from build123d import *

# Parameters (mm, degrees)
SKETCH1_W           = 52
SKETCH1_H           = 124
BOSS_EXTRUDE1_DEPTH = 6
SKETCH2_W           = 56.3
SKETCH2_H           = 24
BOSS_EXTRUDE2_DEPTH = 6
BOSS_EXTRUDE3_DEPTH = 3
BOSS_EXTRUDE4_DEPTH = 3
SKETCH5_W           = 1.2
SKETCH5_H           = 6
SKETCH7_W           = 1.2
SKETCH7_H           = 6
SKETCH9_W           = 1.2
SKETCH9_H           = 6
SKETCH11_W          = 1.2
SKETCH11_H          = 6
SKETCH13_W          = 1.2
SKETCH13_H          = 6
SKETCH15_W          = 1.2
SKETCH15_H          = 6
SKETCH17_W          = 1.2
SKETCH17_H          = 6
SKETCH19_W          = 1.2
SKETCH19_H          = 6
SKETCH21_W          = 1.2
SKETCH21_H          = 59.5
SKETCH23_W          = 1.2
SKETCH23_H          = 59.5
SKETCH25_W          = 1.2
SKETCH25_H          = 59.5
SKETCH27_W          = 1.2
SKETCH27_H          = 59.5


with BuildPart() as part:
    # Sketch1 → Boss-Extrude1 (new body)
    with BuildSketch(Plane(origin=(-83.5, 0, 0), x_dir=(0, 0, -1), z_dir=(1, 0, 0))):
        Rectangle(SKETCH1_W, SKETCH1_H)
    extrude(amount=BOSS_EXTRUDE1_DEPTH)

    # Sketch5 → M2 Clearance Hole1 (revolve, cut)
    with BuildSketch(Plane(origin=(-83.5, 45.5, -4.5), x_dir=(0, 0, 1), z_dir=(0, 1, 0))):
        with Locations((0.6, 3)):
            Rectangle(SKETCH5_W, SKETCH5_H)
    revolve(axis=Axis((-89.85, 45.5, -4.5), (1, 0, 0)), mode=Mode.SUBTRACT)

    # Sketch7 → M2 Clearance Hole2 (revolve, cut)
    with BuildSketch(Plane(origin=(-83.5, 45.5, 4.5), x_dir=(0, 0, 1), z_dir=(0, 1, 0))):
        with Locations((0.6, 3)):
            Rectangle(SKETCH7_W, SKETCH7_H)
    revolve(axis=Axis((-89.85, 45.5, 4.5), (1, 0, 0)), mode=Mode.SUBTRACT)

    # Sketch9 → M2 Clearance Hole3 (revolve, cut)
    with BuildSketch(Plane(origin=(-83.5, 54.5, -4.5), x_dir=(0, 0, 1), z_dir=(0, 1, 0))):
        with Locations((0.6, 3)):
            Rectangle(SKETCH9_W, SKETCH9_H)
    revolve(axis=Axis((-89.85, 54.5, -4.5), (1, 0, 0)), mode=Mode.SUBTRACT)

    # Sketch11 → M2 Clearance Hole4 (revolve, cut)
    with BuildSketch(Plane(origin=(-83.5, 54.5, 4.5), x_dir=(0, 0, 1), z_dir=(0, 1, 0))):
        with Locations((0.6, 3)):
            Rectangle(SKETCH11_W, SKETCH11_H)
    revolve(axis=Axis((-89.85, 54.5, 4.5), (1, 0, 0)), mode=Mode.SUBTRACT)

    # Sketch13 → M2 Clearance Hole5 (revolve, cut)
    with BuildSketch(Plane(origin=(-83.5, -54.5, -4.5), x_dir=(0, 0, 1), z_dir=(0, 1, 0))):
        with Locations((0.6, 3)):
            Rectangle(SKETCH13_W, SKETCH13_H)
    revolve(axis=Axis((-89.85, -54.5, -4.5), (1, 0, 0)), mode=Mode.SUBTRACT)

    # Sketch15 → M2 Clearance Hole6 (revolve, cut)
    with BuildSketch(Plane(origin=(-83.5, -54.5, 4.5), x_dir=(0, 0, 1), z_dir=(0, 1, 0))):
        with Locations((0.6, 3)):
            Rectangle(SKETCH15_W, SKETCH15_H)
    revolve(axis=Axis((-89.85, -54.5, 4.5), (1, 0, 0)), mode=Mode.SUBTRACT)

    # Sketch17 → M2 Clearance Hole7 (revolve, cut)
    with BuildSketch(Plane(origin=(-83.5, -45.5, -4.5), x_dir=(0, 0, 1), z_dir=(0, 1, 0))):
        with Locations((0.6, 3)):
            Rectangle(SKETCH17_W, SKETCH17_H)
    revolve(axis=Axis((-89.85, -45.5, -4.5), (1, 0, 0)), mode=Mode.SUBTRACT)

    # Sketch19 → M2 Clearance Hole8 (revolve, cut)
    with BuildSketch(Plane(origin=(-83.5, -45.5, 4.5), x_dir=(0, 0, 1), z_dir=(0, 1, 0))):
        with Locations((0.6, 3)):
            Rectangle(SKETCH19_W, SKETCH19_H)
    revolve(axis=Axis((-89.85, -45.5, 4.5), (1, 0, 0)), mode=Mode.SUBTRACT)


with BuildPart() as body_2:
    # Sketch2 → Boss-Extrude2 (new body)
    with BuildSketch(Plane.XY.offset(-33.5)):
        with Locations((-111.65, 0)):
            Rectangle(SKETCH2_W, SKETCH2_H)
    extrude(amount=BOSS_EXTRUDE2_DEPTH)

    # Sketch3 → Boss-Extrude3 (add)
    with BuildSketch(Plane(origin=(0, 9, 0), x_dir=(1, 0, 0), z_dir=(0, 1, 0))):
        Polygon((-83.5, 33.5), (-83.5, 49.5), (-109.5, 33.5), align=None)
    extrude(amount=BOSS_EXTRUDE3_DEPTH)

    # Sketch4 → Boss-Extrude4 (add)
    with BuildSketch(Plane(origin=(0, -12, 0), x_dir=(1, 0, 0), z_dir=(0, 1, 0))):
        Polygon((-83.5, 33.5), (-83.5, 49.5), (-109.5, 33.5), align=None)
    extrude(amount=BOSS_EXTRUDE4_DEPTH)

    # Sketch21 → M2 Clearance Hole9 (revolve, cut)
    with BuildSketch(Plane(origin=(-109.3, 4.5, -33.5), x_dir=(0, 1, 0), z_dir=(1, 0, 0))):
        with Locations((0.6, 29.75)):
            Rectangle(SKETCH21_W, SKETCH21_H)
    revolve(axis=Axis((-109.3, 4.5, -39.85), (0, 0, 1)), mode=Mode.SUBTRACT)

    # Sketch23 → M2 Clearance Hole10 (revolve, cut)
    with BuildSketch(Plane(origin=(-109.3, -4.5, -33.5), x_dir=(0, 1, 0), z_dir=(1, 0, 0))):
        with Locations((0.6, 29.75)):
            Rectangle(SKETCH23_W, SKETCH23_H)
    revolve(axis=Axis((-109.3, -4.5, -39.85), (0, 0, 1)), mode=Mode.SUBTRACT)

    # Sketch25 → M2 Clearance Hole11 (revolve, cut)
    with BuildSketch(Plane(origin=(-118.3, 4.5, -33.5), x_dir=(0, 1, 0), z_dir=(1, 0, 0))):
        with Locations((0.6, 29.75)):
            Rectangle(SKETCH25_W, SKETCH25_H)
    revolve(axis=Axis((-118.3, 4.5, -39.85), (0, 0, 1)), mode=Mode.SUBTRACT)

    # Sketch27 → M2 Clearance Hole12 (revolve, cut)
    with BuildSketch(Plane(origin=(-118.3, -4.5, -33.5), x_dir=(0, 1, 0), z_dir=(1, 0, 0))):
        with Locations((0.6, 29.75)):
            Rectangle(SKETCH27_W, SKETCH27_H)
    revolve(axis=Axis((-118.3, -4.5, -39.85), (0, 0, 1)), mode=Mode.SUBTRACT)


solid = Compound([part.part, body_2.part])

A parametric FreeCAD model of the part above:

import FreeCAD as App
import Part
import Sketcher
Q = App.Units.Quantity


def add_polygon(sketch, points):
    """Adds a closed chain of lines whose ends are joined by coincident constraints."""
    first, n = sketch.GeometryCount, len(points)
    for a, b in zip(points, points[1:] + points[:1]):
        sketch.addGeometry(Part.LineSegment(App.Vector(*a, 0), App.Vector(*b, 0)), False)
    for i in range(n):
        sketch.addConstraint(Sketcher.Constraint("Coincident", first + i, 2, first + (i + 1) % n, 1))

doc = App.newDocument("Part")
params = doc.addObject("Spreadsheet::Sheet", "Params")
for row, (alias, value) in enumerate([
    ("sketch1_width", "124 mm"),
    ("sketch1_height", "52 mm"),
    ("pad1_length", "6 mm"),
    ("sketch2_width", "6 mm"),
    ("sketch2_height", "1.2 mm"),
    ("groove_angle", "360 deg"),
    ("sketch3_width", "6 mm"),
    ("sketch3_height", "1.2 mm"),
    ("groove2_angle", "360 deg"),
    ("sketch4_width", "6 mm"),
    ("sketch4_height", "1.2 mm"),
    ("groove3_angle", "360 deg"),
    ("sketch5_width", "6 mm"),
    ("sketch5_height", "1.2 mm"),
    ("groove4_angle", "360 deg"),
    ("sketch6_width", "6 mm"),
    ("sketch6_height", "1.2 mm"),
    ("groove5_angle", "360 deg"),
    ("sketch7_width", "6 mm"),
    ("sketch7_height", "1.2 mm"),
    ("groove6_angle", "360 deg"),
    ("sketch8_width", "6 mm"),
    ("sketch8_height", "1.2 mm"),
    ("groove7_angle", "360 deg"),
    ("sketch9_width", "6 mm"),
    ("sketch9_height", "1.2 mm"),
    ("groove8_angle", "360 deg"),
    ("sketch10_height", "24 mm"),
    ("sketch10_width", "56.3 mm"),
    ("pad2_length", "6 mm"),
    ("sketch11_width", "26 mm"),
    ("sketch11_height", "16 mm"),
    ("pad3_length", "3 mm"),
    ("sketch12_width", "26 mm"),
    ("sketch12_height", "16 mm"),
    ("pad4_length", "3 mm"),
    ("sketch13_width", "1.2 mm"),
    ("sketch13_height", "59.5 mm"),
    ("groove9_angle", "360 deg"),
    ("sketch14_width", "1.2 mm"),
    ("sketch14_height", "59.5 mm"),
    ("groove10_angle", "360 deg"),
    ("sketch15_width", "1.2 mm"),
    ("sketch15_height", "59.5 mm"),
    ("groove11_angle", "360 deg"),
    ("sketch16_width", "1.2 mm"),
    ("sketch16_height", "59.5 mm"),
    ("groove12_angle", "360 deg"),
], start=1):
    params.set(f"A{row}", alias)
    params.set(f"B{row}", "=" + value)
    params.setAlias(f"B{row}", alias)

body = doc.addObject("PartDesign::Body", "Body")

sketch1 = body.newObject("Sketcher::SketchObject", "Sketch")
sketch1.AttachmentSupport = (doc.getObject("YZ_Plane"), [""])
sketch1.MapMode = "FlatFace"
sketch1.AttachmentOffset = App.Placement(App.Vector(0, 0, -83.5), App.Rotation())
add_polygon(sketch1, [(62, 26), (-62, 26), (-62, -26), (62, -26)])
sketch1.addConstraint([
    Sketcher.Constraint("Horizontal", 0),
    Sketcher.Constraint("Vertical", 1),
    Sketcher.Constraint("Horizontal", 2),
    Sketcher.Constraint("Vertical", 3),
    Sketcher.Constraint("Symmetric", 0, 2, 2, 2, -1, 1),
    Sketcher.Constraint("DistanceX", 0, 2, 0, 1, Q("124 mm")),
    Sketcher.Constraint("DistanceY", 1, 2, 1, 1, Q("52 mm")),
])
sketch1.setExpression("Constraints[9]", "Params.sketch1_width")
sketch1.setExpression("Constraints[10]", "Params.sketch1_height")
pad1 = body.newObject("PartDesign::Pad", "Pad")
pad1.Profile = sketch1
pad1.setExpression("Length", "Params.pad1_length")

sketch2 = body.newObject("Sketcher::SketchObject", "Sketch001")
sketch2.AttachmentSupport = (doc.getObject("XZ_Plane"), [""])
sketch2.MapMode = "FlatFace"
sketch2.AttachmentOffset = App.Placement(App.Vector(0, 0, -45.5), App.Rotation())
add_polygon(sketch2, [(-77.5, -4.5), (-83.5, -4.5), (-83.5, -3.3), (-77.5, -3.3)])
sketch2.addGeometry(Part.LineSegment(App.Vector(-83.5, -4.5, 0), App.Vector(-77.5, -4.5, 0)), True)
sketch2.addConstraint([
    Sketcher.Constraint("Horizontal", 0),
    Sketcher.Constraint("Vertical", 1),
    Sketcher.Constraint("Horizontal", 2),
    Sketcher.Constraint("Vertical", 3),
    Sketcher.Constraint("Horizontal", 4),
    Sketcher.Constraint("Coincident", 4, 1, 0, 2),
    Sketcher.Constraint("Vertical", 2, 2, 4, 2),
    Sketcher.Constraint("DistanceX", 0, 2, 0, 1, Q("6 mm")),
    Sketcher.Constraint("DistanceY", 1, 1, 1, 2, Q("1.2 mm")),
    Sketcher.Constraint("DistanceX", 0, 2, -1, 1, Q("83.5 mm")),
    Sketcher.Constraint("DistanceY", 0, 2, -1, 1, Q("4.5 mm")),
])
sketch2.setExpression("Constraints[11]", "Params.sketch2_width")
sketch2.setExpression("Constraints[12]", "Params.sketch2_height")
groove = body.newObject("PartDesign::Groove", "Groove")
groove.Profile = sketch2
groove.ReferenceAxis = (sketch2, ["Axis0"])
groove.setExpression("Angle", "Params.groove_angle")

sketch3 = body.newObject("Sketcher::SketchObject", "Sketch002")
sketch3.AttachmentSupport = (doc.getObject("XZ_Plane"), [""])
sketch3.MapMode = "FlatFace"
sketch3.AttachmentOffset = App.Placement(App.Vector(0, 0, -45.5), App.Rotation())
add_polygon(sketch3, [(-77.5, 4.5), (-83.5, 4.5), (-83.5, 5.7), (-77.5, 5.7)])
sketch3.addGeometry(Part.LineSegment(App.Vector(-83.5, 4.5, 0), App.Vector(-77.5, 4.5, 0)), True)
sketch3.addConstraint([
    Sketcher.Constraint("Horizontal", 0),
    Sketcher.Constraint("Vertical", 1),
    Sketcher.Constraint("Horizontal", 2),
    Sketcher.Constraint("Vertical", 3),
    Sketcher.Constraint("Horizontal", 4),
    Sketcher.Constraint("Coincident", 4, 1, 0, 2),
    Sketcher.Constraint("Vertical", 2, 2, 4, 2),
    Sketcher.Constraint("DistanceX", 0, 2, 0, 1, Q("6 mm")),
    Sketcher.Constraint("DistanceY", 1, 1, 1, 2, Q("1.2 mm")),
    Sketcher.Constraint("DistanceX", 0, 2, -1, 1, Q("83.5 mm")),
    Sketcher.Constraint("DistanceY", -1, 1, 0, 2, Q("4.5 mm")),
])
sketch3.setExpression("Constraints[11]", "Params.sketch3_width")
sketch3.setExpression("Constraints[12]", "Params.sketch3_height")
groove2 = body.newObject("PartDesign::Groove", "Groove001")
groove2.Profile = sketch3
groove2.ReferenceAxis = (sketch3, ["Axis0"])
groove2.setExpression("Angle", "Params.groove2_angle")

sketch4 = body.newObject("Sketcher::SketchObject", "Sketch003")
sketch4.AttachmentSupport = (doc.getObject("XZ_Plane"), [""])
sketch4.MapMode = "FlatFace"
sketch4.AttachmentOffset = App.Placement(App.Vector(0, 0, -54.5), App.Rotation())
add_polygon(sketch4, [(-77.5, -4.5), (-83.5, -4.5), (-83.5, -3.3), (-77.5, -3.3)])
sketch4.addGeometry(Part.LineSegment(App.Vector(-83.5, -4.5, 0), App.Vector(-77.5, -4.5, 0)), True)
sketch4.addConstraint([
    Sketcher.Constraint("Horizontal", 0),
    Sketcher.Constraint("Vertical", 1),
    Sketcher.Constraint("Horizontal", 2),
    Sketcher.Constraint("Vertical", 3),
    Sketcher.Constraint("Horizontal", 4),
    Sketcher.Constraint("Coincident", 4, 1, 0, 2),
    Sketcher.Constraint("Vertical", 2, 2, 4, 2),
    Sketcher.Constraint("DistanceX", 0, 2, 0, 1, Q("6 mm")),
    Sketcher.Constraint("DistanceY", 1, 1, 1, 2, Q("1.2 mm")),
    Sketcher.Constraint("DistanceX", 0, 2, -1, 1, Q("83.5 mm")),
    Sketcher.Constraint("DistanceY", 0, 2, -1, 1, Q("4.5 mm")),
])
sketch4.setExpression("Constraints[11]", "Params.sketch4_width")
sketch4.setExpression("Constraints[12]", "Params.sketch4_height")
groove3 = body.newObject("PartDesign::Groove", "Groove002")
groove3.Profile = sketch4
groove3.ReferenceAxis = (sketch4, ["Axis0"])
groove3.setExpression("Angle", "Params.groove3_angle")

sketch5 = body.newObject("Sketcher::SketchObject", "Sketch004")
sketch5.AttachmentSupport = (doc.getObject("XZ_Plane"), [""])
sketch5.MapMode = "FlatFace"
sketch5.AttachmentOffset = App.Placement(App.Vector(0, 0, -54.5), App.Rotation())
add_polygon(sketch5, [(-77.5, 4.5), (-83.5, 4.5), (-83.5, 5.7), (-77.5, 5.7)])
sketch5.addGeometry(Part.LineSegment(App.Vector(-83.5, 4.5, 0), App.Vector(-77.5, 4.5, 0)), True)
sketch5.addConstraint([
    Sketcher.Constraint("Horizontal", 0),
    Sketcher.Constraint("Vertical", 1),
    Sketcher.Constraint("Horizontal", 2),
    Sketcher.Constraint("Vertical", 3),
    Sketcher.Constraint("Horizontal", 4),
    Sketcher.Constraint("Coincident", 4, 1, 0, 2),
    Sketcher.Constraint("Vertical", 2, 2, 4, 2),
    Sketcher.Constraint("DistanceX", 0, 2, 0, 1, Q("6 mm")),
    Sketcher.Constraint("DistanceY", 1, 1, 1, 2, Q("1.2 mm")),
    Sketcher.Constraint("DistanceX", 0, 2, -1, 1, Q("83.5 mm")),
    Sketcher.Constraint("DistanceY", -1, 1, 0, 2, Q("4.5 mm")),
])
sketch5.setExpression("Constraints[11]", "Params.sketch5_width")
sketch5.setExpression("Constraints[12]", "Params.sketch5_height")
groove4 = body.newObject("PartDesign::Groove", "Groove003")
groove4.Profile = sketch5
groove4.ReferenceAxis = (sketch5, ["Axis0"])
groove4.setExpression("Angle", "Params.groove4_angle")

sketch6 = body.newObject("Sketcher::SketchObject", "Sketch005")
sketch6.AttachmentSupport = (doc.getObject("XZ_Plane"), [""])
sketch6.MapMode = "FlatFace"
sketch6.AttachmentOffset = App.Placement(App.Vector(0, 0, 54.5), App.Rotation())
add_polygon(sketch6, [(-77.5, -4.5), (-83.5, -4.5), (-83.5, -3.3), (-77.5, -3.3)])
sketch6.addGeometry(Part.LineSegment(App.Vector(-83.5, -4.5, 0), App.Vector(-77.5, -4.5, 0)), True)
sketch6.addConstraint([
    Sketcher.Constraint("Horizontal", 0),
    Sketcher.Constraint("Vertical", 1),
    Sketcher.Constraint("Horizontal", 2),
    Sketcher.Constraint("Vertical", 3),
    Sketcher.Constraint("Horizontal", 4),
    Sketcher.Constraint("Coincident", 4, 1, 0, 2),
    Sketcher.Constraint("Vertical", 2, 2, 4, 2),
    Sketcher.Constraint("DistanceX", 0, 2, 0, 1, Q("6 mm")),
    Sketcher.Constraint("DistanceY", 1, 1, 1, 2, Q("1.2 mm")),
    Sketcher.Constraint("DistanceX", 0, 2, -1, 1, Q("83.5 mm")),
    Sketcher.Constraint("DistanceY", 0, 2, -1, 1, Q("4.5 mm")),
])
sketch6.setExpression("Constraints[11]", "Params.sketch6_width")
sketch6.setExpression("Constraints[12]", "Params.sketch6_height")
groove5 = body.newObject("PartDesign::Groove", "Groove004")
groove5.Profile = sketch6
groove5.ReferenceAxis = (sketch6, ["Axis0"])
groove5.setExpression("Angle", "Params.groove5_angle")

sketch7 = body.newObject("Sketcher::SketchObject", "Sketch006")
sketch7.AttachmentSupport = (doc.getObject("XZ_Plane"), [""])
sketch7.MapMode = "FlatFace"
sketch7.AttachmentOffset = App.Placement(App.Vector(0, 0, 54.5), App.Rotation())
add_polygon(sketch7, [(-77.5, 4.5), (-83.5, 4.5), (-83.5, 5.7), (-77.5, 5.7)])
sketch7.addGeometry(Part.LineSegment(App.Vector(-83.5, 4.5, 0), App.Vector(-77.5, 4.5, 0)), True)
sketch7.addConstraint([
    Sketcher.Constraint("Horizontal", 0),
    Sketcher.Constraint("Vertical", 1),
    Sketcher.Constraint("Horizontal", 2),
    Sketcher.Constraint("Vertical", 3),
    Sketcher.Constraint("Horizontal", 4),
    Sketcher.Constraint("Coincident", 4, 1, 0, 2),
    Sketcher.Constraint("Vertical", 2, 2, 4, 2),
    Sketcher.Constraint("DistanceX", 0, 2, 0, 1, Q("6 mm")),
    Sketcher.Constraint("DistanceY", 1, 1, 1, 2, Q("1.2 mm")),
    Sketcher.Constraint("DistanceX", 0, 2, -1, 1, Q("83.5 mm")),
    Sketcher.Constraint("DistanceY", -1, 1, 0, 2, Q("4.5 mm")),
])
sketch7.setExpression("Constraints[11]", "Params.sketch7_width")
sketch7.setExpression("Constraints[12]", "Params.sketch7_height")
groove6 = body.newObject("PartDesign::Groove", "Groove005")
groove6.Profile = sketch7
groove6.ReferenceAxis = (sketch7, ["Axis0"])
groove6.setExpression("Angle", "Params.groove6_angle")

sketch8 = body.newObject("Sketcher::SketchObject", "Sketch007")
sketch8.AttachmentSupport = (doc.getObject("XZ_Plane"), [""])
sketch8.MapMode = "FlatFace"
sketch8.AttachmentOffset = App.Placement(App.Vector(0, 0, 45.5), App.Rotation())
add_polygon(sketch8, [(-77.5, -4.5), (-83.5, -4.5), (-83.5, -3.3), (-77.5, -3.3)])
sketch8.addGeometry(Part.LineSegment(App.Vector(-83.5, -4.5, 0), App.Vector(-77.5, -4.5, 0)), True)
sketch8.addConstraint([
    Sketcher.Constraint("Horizontal", 0),
    Sketcher.Constraint("Vertical", 1),
    Sketcher.Constraint("Horizontal", 2),
    Sketcher.Constraint("Vertical", 3),
    Sketcher.Constraint("Horizontal", 4),
    Sketcher.Constraint("Coincident", 4, 1, 0, 2),
    Sketcher.Constraint("Vertical", 2, 2, 4, 2),
    Sketcher.Constraint("DistanceX", 0, 2, 0, 1, Q("6 mm")),
    Sketcher.Constraint("DistanceY", 1, 1, 1, 2, Q("1.2 mm")),
    Sketcher.Constraint("DistanceX", 0, 2, -1, 1, Q("83.5 mm")),
    Sketcher.Constraint("DistanceY", 0, 2, -1, 1, Q("4.5 mm")),
])
sketch8.setExpression("Constraints[11]", "Params.sketch8_width")
sketch8.setExpression("Constraints[12]", "Params.sketch8_height")
groove7 = body.newObject("PartDesign::Groove", "Groove006")
groove7.Profile = sketch8
groove7.ReferenceAxis = (sketch8, ["Axis0"])
groove7.setExpression("Angle", "Params.groove7_angle")

sketch9 = body.newObject("Sketcher::SketchObject", "Sketch008")
sketch9.AttachmentSupport = (doc.getObject("XZ_Plane"), [""])
sketch9.MapMode = "FlatFace"
sketch9.AttachmentOffset = App.Placement(App.Vector(0, 0, 45.5), App.Rotation())
add_polygon(sketch9, [(-77.5, 4.5), (-83.5, 4.5), (-83.5, 5.7), (-77.5, 5.7)])
sketch9.addGeometry(Part.LineSegment(App.Vector(-83.5, 4.5, 0), App.Vector(-77.5, 4.5, 0)), True)
sketch9.addConstraint([
    Sketcher.Constraint("Horizontal", 0),
    Sketcher.Constraint("Vertical", 1),
    Sketcher.Constraint("Horizontal", 2),
    Sketcher.Constraint("Vertical", 3),
    Sketcher.Constraint("Horizontal", 4),
    Sketcher.Constraint("Coincident", 4, 1, 0, 2),
    Sketcher.Constraint("Vertical", 2, 2, 4, 2),
    Sketcher.Constraint("DistanceX", 0, 2, 0, 1, Q("6 mm")),
    Sketcher.Constraint("DistanceY", 1, 1, 1, 2, Q("1.2 mm")),
    Sketcher.Constraint("DistanceX", 0, 2, -1, 1, Q("83.5 mm")),
    Sketcher.Constraint("DistanceY", -1, 1, 0, 2, Q("4.5 mm")),
])
sketch9.setExpression("Constraints[11]", "Params.sketch9_width")
sketch9.setExpression("Constraints[12]", "Params.sketch9_height")
groove8 = body.newObject("PartDesign::Groove", "Groove007")
groove8.Profile = sketch9
groove8.ReferenceAxis = (sketch9, ["Axis0"])
groove8.setExpression("Angle", "Params.groove8_angle")
body2 = doc.addObject("PartDesign::Body", "Body001")

sketch10 = body2.newObject("Sketcher::SketchObject", "Sketch009")
sketch10.AttachmentSupport = (doc.getObject("XY_Plane001"), [""])
sketch10.MapMode = "FlatFace"
sketch10.AttachmentOffset = App.Placement(App.Vector(0, 0, -33.5), App.Rotation())
add_polygon(sketch10, [(-140, 12), (-140, -12), (-84, -12), (-84, 12)])
sketch10.addConstraint([
    Sketcher.Constraint("Vertical", 0),
    Sketcher.Constraint("Horizontal", 1),
    Sketcher.Constraint("Vertical", 2),
    Sketcher.Constraint("Horizontal", 3),
    Sketcher.Constraint("DistanceY", 0, 2, 0, 1, Q("24 mm")),
    Sketcher.Constraint("DistanceX", 1, 1, 1, 2, Q("56.3 mm")),
    Sketcher.Constraint("DistanceY", 0, 2, -1, 1, Q("12 mm")),
    Sketcher.Constraint("DistanceX", 0, 2, -1, 1, Q("139.8 mm")),
])
sketch10.setExpression("Constraints[8]", "Params.sketch10_height")
sketch10.setExpression("Constraints[9]", "Params.sketch10_width")
pad2 = body2.newObject("PartDesign::Pad", "Pad001")
pad2.Profile = sketch10
pad2.setExpression("Length", "Params.pad2_length")

sketch11 = body2.newObject("Sketcher::SketchObject", "Sketch010")
sketch11.AttachmentSupport = (doc.getObject("XZ_Plane001"), [""])
sketch11.MapMode = "FlatFace"
sketch11.AttachmentOffset = App.Placement(App.Vector(0, 0, -9), App.Rotation())
add_polygon(sketch11, [(-84, -34), (-84, -50), (-110, -34)])
sketch11.addConstraint([
    Sketcher.Constraint("Vertical", 0),
    Sketcher.Constraint("Horizontal", 2),
    Sketcher.Constraint("DistanceX", 2, 1, 2, 2, Q("26 mm")),
    Sketcher.Constraint("DistanceY", 0, 2, 0, 1, Q("16 mm")),
    Sketcher.Constraint("DistanceX", 0, 2, -1, 1, Q("83.5 mm")),
    Sketcher.Constraint("DistanceY", 0, 2, -1, 1, Q("49.5 mm")),
])
sketch11.setExpression("Constraints[5]", "Params.sketch11_width")
sketch11.setExpression("Constraints[6]", "Params.sketch11_height")
pad3 = body2.newObject("PartDesign::Pad", "Pad002")
pad3.Profile = sketch11
pad3.setExpression("Length", "Params.pad3_length")
pad3.Reversed = True

sketch12 = body2.newObject("Sketcher::SketchObject", "Sketch011")
sketch12.AttachmentSupport = (doc.getObject("XZ_Plane001"), [""])
sketch12.MapMode = "FlatFace"
sketch12.AttachmentOffset = App.Placement(App.Vector(0, 0, 12), App.Rotation())
add_polygon(sketch12, [(-84, -34), (-84, -50), (-110, -34)])
sketch12.addConstraint([
    Sketcher.Constraint("Vertical", 0),
    Sketcher.Constraint("Horizontal", 2),
    Sketcher.Constraint("DistanceX", 2, 1, 2, 2, Q("26 mm")),
    Sketcher.Constraint("DistanceY", 0, 2, 0, 1, Q("16 mm")),
    Sketcher.Constraint("DistanceX", 0, 2, -1, 1, Q("83.5 mm")),
    Sketcher.Constraint("DistanceY", 0, 2, -1, 1, Q("49.5 mm")),
])
sketch12.setExpression("Constraints[5]", "Params.sketch12_width")
sketch12.setExpression("Constraints[6]", "Params.sketch12_height")
pad4 = body2.newObject("PartDesign::Pad", "Pad003")
pad4.Profile = sketch12
pad4.setExpression("Length", "Params.pad4_length")
pad4.Reversed = True

sketch13 = body2.newObject("Sketcher::SketchObject", "Sketch012")
sketch13.AttachmentSupport = (doc.getObject("YZ_Plane001"), [""])
sketch13.MapMode = "FlatFace"
sketch13.AttachmentOffset = App.Placement(App.Vector(0, 0, -109.3), App.Rotation())
add_polygon(sketch13, [(4.5, 26), (4.5, -33.5), (5.7, -33.5), (5.7, 26)])
sketch13.addGeometry(Part.LineSegment(App.Vector(4.5, -33.5, 0), App.Vector(4.5, 26, 0)), True)
sketch13.addConstraint([
    Sketcher.Constraint("Vertical", 0),
    Sketcher.Constraint("Horizontal", 1),
    Sketcher.Constraint("Vertical", 2),
    Sketcher.Constraint("Horizontal", 3),
    Sketcher.Constraint("Vertical", 4),
    Sketcher.Constraint("Coincident", 4, 1, 0, 2),
    Sketcher.Constraint("Horizontal", 2, 2, 4, 2),
    Sketcher.Constraint("DistanceX", 1, 1, 1, 2, Q("1.2 mm")),
    Sketcher.Constraint("DistanceY", 0, 2, 0, 1, Q("59.5 mm")),
    Sketcher.Constraint("DistanceY", -1, 1, 2, 2, Q("26 mm")),
    Sketcher.Constraint("DistanceX", -1, 1, 0, 2, Q("4.5 mm")),
])
sketch13.setExpression("Constraints[11]", "Params.sketch13_width")
sketch13.setExpression("Constraints[12]", "Params.sketch13_height")
groove9 = body2.newObject("PartDesign::Groove", "Groove008")
groove9.Profile = sketch13
groove9.ReferenceAxis = (sketch13, ["Axis0"])
groove9.setExpression("Angle", "Params.groove9_angle")

sketch14 = body2.newObject("Sketcher::SketchObject", "Sketch013")
sketch14.AttachmentSupport = (doc.getObject("YZ_Plane001"), [""])
sketch14.MapMode = "FlatFace"
sketch14.AttachmentOffset = App.Placement(App.Vector(0, 0, -109.3), App.Rotation())
add_polygon(sketch14, [(-4.5, 26), (-4.5, -33.5), (-3.3, -33.5), (-3.3, 26)])
sketch14.addGeometry(Part.LineSegment(App.Vector(-4.5, -33.5, 0), App.Vector(-4.5, 26, 0)), True)
sketch14.addConstraint([
    Sketcher.Constraint("Vertical", 0),
    Sketcher.Constraint("Horizontal", 1),
    Sketcher.Constraint("Vertical", 2),
    Sketcher.Constraint("Horizontal", 3),
    Sketcher.Constraint("Vertical", 4),
    Sketcher.Constraint("Coincident", 4, 1, 0, 2),
    Sketcher.Constraint("Horizontal", 2, 2, 4, 2),
    Sketcher.Constraint("DistanceX", 1, 1, 1, 2, Q("1.2 mm")),
    Sketcher.Constraint("DistanceY", 0, 2, 0, 1, Q("59.5 mm")),
    Sketcher.Constraint("DistanceY", -1, 1, 2, 2, Q("26 mm")),
    Sketcher.Constraint("DistanceX", 0, 2, -1, 1, Q("4.5 mm")),
])
sketch14.setExpression("Constraints[11]", "Params.sketch14_width")
sketch14.setExpression("Constraints[12]", "Params.sketch14_height")
groove10 = body2.newObject("PartDesign::Groove", "Groove009")
groove10.Profile = sketch14
groove10.ReferenceAxis = (sketch14, ["Axis0"])
groove10.setExpression("Angle", "Params.groove10_angle")

sketch15 = body2.newObject("Sketcher::SketchObject", "Sketch014")
sketch15.AttachmentSupport = (doc.getObject("YZ_Plane001"), [""])
sketch15.MapMode = "FlatFace"
sketch15.AttachmentOffset = App.Placement(App.Vector(0, 0, -118.3), App.Rotation())
add_polygon(sketch15, [(4.5, 26), (4.5, -33.5), (5.7, -33.5), (5.7, 26)])
sketch15.addGeometry(Part.LineSegment(App.Vector(4.5, -33.5, 0), App.Vector(4.5, 26, 0)), True)
sketch15.addConstraint([
    Sketcher.Constraint("Vertical", 0),
    Sketcher.Constraint("Horizontal", 1),
    Sketcher.Constraint("Vertical", 2),
    Sketcher.Constraint("Horizontal", 3),
    Sketcher.Constraint("Vertical", 4),
    Sketcher.Constraint("Coincident", 4, 1, 0, 2),
    Sketcher.Constraint("Horizontal", 2, 2, 4, 2),
    Sketcher.Constraint("DistanceX", 1, 1, 1, 2, Q("1.2 mm")),
    Sketcher.Constraint("DistanceY", 0, 2, 0, 1, Q("59.5 mm")),
    Sketcher.Constraint("DistanceY", -1, 1, 2, 2, Q("26 mm")),
    Sketcher.Constraint("DistanceX", -1, 1, 0, 2, Q("4.5 mm")),
])
sketch15.setExpression("Constraints[11]", "Params.sketch15_width")
sketch15.setExpression("Constraints[12]", "Params.sketch15_height")
groove11 = body2.newObject("PartDesign::Groove", "Groove010")
groove11.Profile = sketch15
groove11.ReferenceAxis = (sketch15, ["Axis0"])
groove11.setExpression("Angle", "Params.groove11_angle")

sketch16 = body2.newObject("Sketcher::SketchObject", "Sketch015")
sketch16.AttachmentSupport = (doc.getObject("YZ_Plane001"), [""])
sketch16.MapMode = "FlatFace"
sketch16.AttachmentOffset = App.Placement(App.Vector(0, 0, -118.3), App.Rotation())
add_polygon(sketch16, [(-4.5, 26), (-4.5, -33.5), (-3.3, -33.5), (-3.3, 26)])
sketch16.addGeometry(Part.LineSegment(App.Vector(-4.5, -33.5, 0), App.Vector(-4.5, 26, 0)), True)
sketch16.addConstraint([
    Sketcher.Constraint("Vertical", 0),
    Sketcher.Constraint("Horizontal", 1),
    Sketcher.Constraint("Vertical", 2),
    Sketcher.Constraint("Horizontal", 3),
    Sketcher.Constraint("Vertical", 4),
    Sketcher.Constraint("Coincident", 4, 1, 0, 2),
    Sketcher.Constraint("Horizontal", 2, 2, 4, 2),
    Sketcher.Constraint("DistanceX", 1, 1, 1, 2, Q("1.2 mm")),
    Sketcher.Constraint("DistanceY", 0, 2, 0, 1, Q("59.5 mm")),
    Sketcher.Constraint("DistanceY", -1, 1, 2, 2, Q("26 mm")),
    Sketcher.Constraint("DistanceX", 0, 2, -1, 1, Q("4.5 mm")),
])
sketch16.setExpression("Constraints[11]", "Params.sketch16_width")
sketch16.setExpression("Constraints[12]", "Params.sketch16_height")
groove12 = body2.newObject("PartDesign::Groove", "Groove011")
groove12.Profile = sketch16
groove12.ReferenceAxis = (sketch16, ["Axis0"])
groove12.setExpression("Angle", "Params.groove12_angle")

doc.recompute()
